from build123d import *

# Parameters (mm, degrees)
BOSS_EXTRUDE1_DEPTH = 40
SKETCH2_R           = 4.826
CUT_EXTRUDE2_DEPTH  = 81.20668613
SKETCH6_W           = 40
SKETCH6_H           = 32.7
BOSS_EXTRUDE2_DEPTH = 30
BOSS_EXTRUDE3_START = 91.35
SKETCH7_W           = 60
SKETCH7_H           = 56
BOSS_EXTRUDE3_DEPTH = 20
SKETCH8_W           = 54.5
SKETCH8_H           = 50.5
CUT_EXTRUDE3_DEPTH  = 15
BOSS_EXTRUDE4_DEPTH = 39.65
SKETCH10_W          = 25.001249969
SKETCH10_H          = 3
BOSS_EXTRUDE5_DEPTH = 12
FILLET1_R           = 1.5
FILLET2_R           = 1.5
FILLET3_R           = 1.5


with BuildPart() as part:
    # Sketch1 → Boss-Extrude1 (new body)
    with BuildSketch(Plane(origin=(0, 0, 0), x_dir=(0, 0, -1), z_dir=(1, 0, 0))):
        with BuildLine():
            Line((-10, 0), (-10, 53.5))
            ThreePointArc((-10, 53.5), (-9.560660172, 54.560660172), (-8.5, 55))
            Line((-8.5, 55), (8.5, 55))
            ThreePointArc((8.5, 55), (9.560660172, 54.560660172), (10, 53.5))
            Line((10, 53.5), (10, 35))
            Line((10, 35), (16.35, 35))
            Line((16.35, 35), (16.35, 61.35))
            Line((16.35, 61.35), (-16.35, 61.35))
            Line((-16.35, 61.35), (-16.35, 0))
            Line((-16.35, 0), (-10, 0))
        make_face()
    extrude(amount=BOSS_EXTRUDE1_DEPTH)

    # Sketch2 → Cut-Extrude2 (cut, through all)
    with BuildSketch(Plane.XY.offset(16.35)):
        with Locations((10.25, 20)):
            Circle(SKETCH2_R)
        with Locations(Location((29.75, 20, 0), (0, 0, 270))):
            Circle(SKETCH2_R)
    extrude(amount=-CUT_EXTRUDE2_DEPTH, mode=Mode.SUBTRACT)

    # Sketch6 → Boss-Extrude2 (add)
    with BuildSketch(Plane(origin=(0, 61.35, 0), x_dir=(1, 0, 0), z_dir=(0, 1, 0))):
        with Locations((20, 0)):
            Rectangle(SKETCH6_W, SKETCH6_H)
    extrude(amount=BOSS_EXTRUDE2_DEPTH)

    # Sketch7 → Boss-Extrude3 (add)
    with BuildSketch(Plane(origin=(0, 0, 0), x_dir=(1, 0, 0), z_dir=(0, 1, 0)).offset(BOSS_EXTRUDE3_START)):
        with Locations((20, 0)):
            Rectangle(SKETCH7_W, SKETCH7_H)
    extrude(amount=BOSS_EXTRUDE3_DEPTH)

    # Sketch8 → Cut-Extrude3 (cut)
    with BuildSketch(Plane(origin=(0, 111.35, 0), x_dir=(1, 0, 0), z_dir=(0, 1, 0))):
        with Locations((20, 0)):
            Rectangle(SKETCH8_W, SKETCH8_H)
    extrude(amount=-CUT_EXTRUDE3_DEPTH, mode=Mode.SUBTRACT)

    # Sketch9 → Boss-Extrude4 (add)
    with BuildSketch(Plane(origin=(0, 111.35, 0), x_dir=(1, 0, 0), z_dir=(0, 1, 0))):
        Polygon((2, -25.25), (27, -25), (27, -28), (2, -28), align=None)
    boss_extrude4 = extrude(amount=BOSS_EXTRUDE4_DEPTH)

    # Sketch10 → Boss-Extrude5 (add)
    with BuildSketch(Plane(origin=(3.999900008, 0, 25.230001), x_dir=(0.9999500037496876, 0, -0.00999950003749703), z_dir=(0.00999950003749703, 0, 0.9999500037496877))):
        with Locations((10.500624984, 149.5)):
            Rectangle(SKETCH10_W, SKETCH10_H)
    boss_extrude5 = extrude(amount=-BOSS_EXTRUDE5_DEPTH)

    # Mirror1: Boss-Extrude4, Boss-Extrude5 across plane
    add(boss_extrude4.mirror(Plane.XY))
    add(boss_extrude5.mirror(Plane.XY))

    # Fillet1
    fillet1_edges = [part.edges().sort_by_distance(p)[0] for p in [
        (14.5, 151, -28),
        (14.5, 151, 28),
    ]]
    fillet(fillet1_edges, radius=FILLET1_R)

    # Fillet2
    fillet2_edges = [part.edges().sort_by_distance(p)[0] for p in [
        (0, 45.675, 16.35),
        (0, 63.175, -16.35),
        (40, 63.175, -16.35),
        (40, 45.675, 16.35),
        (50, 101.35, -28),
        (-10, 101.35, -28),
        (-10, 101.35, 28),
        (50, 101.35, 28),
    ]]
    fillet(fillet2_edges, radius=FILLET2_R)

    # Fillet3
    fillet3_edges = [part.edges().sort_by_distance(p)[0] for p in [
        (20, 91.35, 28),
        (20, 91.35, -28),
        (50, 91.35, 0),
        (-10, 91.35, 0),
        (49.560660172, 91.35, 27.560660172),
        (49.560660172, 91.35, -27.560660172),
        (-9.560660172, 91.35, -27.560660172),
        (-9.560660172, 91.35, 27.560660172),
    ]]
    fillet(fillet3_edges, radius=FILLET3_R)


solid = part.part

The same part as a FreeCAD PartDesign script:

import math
import FreeCAD as App
import Part
import Sketcher

V = App.Vector


def edges_at(feature, points):
    """Names of the edges that pass closest to the given points."""
    edges = feature.Shape.Edges
    near = lambda p: min(range(len(edges)), key=lambda i: edges[i].distToShape(Part.Vertex(*p))[0])
    return sorted({f"Edge{near(p) + 1}" for p in points})

doc = App.newDocument("Part")
body = doc.addObject("PartDesign::Body", "Body")

# Sketch on YZ plane
sketch1 = doc.addObject("Sketcher::SketchObject", "Sketch")
body.addObject(sketch1)
sketch1.AttachmentSupport = (doc.YZ_Plane, [""])
sketch1.MapMode = "FlatFace"
sketch1.addGeometry([
    Part.LineSegment(V(0, 10, 0), V(53.5, 10, 0)),  # 0
    Part.ArcOfCircle(Part.Circle(V(53.5, 8.5, 0), V(0, 0, 1), 1.5), math.radians(0), math.radians(90)),  # 1
    Part.LineSegment(V(55, 8.5, 0), V(55, -8.5, 0)),  # 2
    Part.ArcOfCircle(Part.Circle(V(53.5, -8.5, 0), V(0, 0, 1), 1.5), math.radians(-90), math.radians(0)),  # 3
    Part.LineSegment(V(53.5, -10, 0), V(35, -10, 0)),  # 4
    Part.LineSegment(V(35, -10, 0), V(35, -16.35, 0)),  # 5
    Part.LineSegment(V(35, -16.35, 0), V(61.35, -16.35, 0)),  # 6
    Part.LineSegment(V(61.35, -16.35, 0), V(61.35, 16.35, 0)),  # 7
    Part.LineSegment(V(61.35, 16.35, 0), V(0, 16.35, 0)),  # 8
    Part.LineSegment(V(0, 16.35, 0), V(0, 10, 0)),  # 9
], False)
sketch1.addConstraint([
    Sketcher.Constraint("Tangent", 0, 2, 1, 2),
    Sketcher.Constraint("Tangent", 1, 1, 2, 1),
    Sketcher.Constraint("Tangent", 2, 2, 3, 2),
    Sketcher.Constraint("Tangent", 3, 1, 4, 1),
    Sketcher.Constraint("Coincident", 4, 2, 5, 1),
    Sketcher.Constraint("Coincident", 5, 2, 6, 1),
    Sketcher.Constraint("Coincident", 6, 2, 7, 1),
    Sketcher.Constraint("Coincident", 7, 2, 8, 1),
    Sketcher.Constraint("Coincident", 8, 2, 9, 1),
    Sketcher.Constraint("Coincident", 9, 2, 0, 1),
    Sketcher.Constraint("Horizontal", 0),
    Sketcher.Constraint("Vertical", 2),
    Sketcher.Constraint("Horizontal", 4),
    Sketcher.Constraint("Vertical", 5),
    Sketcher.Constraint("Horizontal", 6),
    Sketcher.Constraint("Vertical", 7),
    Sketcher.Constraint("Horizontal", 8),
    Sketcher.Constraint("Vertical", 9),
    Sketcher.Constraint("Equal", 1, 3),
    Sketcher.Constraint("PointOnObject", 8, 2, -2),
    Sketcher.Constraint("Equal", 5, 9),
    Sketcher.Constraint("Radius", 1, 1.5),
    Sketcher.Constraint("DistanceY", 2, 2, 2, 1, 17.0),
    Sketcher.Constraint("DistanceX", 0, 1, 0, 2, 53.5),
    Sketcher.Constraint("DistanceX", 4, 2, 4, 1, 18.5),
    Sketcher.Constraint("DistanceY", 7, 1, 7, 2, 32.7),
    Sketcher.Constraint("DistanceY", -1, 1, 0, 2, 10.0),
    Sketcher.Constraint("DistanceX", 6, 1, 6, 2, 26.35),
])
pad1 = doc.addObject("PartDesign::Pad", "Pad")
body.addObject(pad1)
pad1.Profile = sketch1
pad1.Length = 40

# Sketch on XY plane
sketch2 = doc.addObject("Sketcher::SketchObject", "Sketch001")
body.addObject(sketch2)
sketch2.AttachmentSupport = (doc.XY_Plane, [""])
sketch2.MapMode = "FlatFace"
sketch2.AttachmentOffset = App.Placement(V(0, 0, 16.35), App.Rotation())
sketch2.addGeometry([
    Part.Circle(V(10.25, 20, 0), V(0, 0, 1), 4.826),
    Part.Circle(V(29.75, 20, 0), V(0, 0, 1), 4.826),
], False)
sketch2.addConstraint([
    Sketcher.Constraint("Equal", 0, 1),
    Sketcher.Constraint("Horizontal", 0, 3, 1, 3),
    Sketcher.Constraint("Diameter", 0, 9.652),
    Sketcher.Constraint("DistanceY", -1, 1, 0, 3, 20.0),
    Sketcher.Constraint("DistanceX", 0, 3, 1, 3, 19.5),
    Sketcher.Constraint("DistanceX", -1, 1, 0, 3, 10.25),
])
pocket1 = doc.addObject("PartDesign::Pocket", "Pocket")
body.addObject(pocket1)
pocket1.Profile = sketch2
pocket1.Type = "ThroughAll"

# Sketch on XZ plane
sketch3 = doc.addObject("Sketcher::SketchObject", "Sketch002")
body.addObject(sketch3)
sketch3.AttachmentSupport = (doc.XZ_Plane, [""])
sketch3.MapMode = "FlatFace"
sketch3.AttachmentOffset = App.Placement(V(0, 0, -61.35), App.Rotation())
sketch3.addGeometry([
    Part.LineSegment(V(0, -16.35, 0), V(0, 16.35, 0)),
    Part.LineSegment(V(0, 16.35, 0), V(40, 16.35, 0)),
    Part.LineSegment(V(40, 16.35, 0), V(40, -16.35, 0)),
    Part.LineSegment(V(40, -16.35, 0), V(0, -16.35, 0)),
], False)
sketch3.addConstraint([
    Sketcher.Constraint("Coincident", 0, 2, 1, 1),
    Sketcher.Constraint("Coincident", 1, 2, 2, 1),
    Sketcher.Constraint("Coincident", 2, 2, 3, 1),
    Sketcher.Constraint("Coincident", 3, 2, 0, 1),
    Sketcher.Constraint("Vertical", 0),
    Sketcher.Constraint("Horizontal", 1),
    Sketcher.Constraint("Vertical", 2),
    Sketcher.Constraint("Horizontal", 3),
    Sketcher.Constraint("Symmetric", 0, 2, 3, 2, -1, 1),
    Sketcher.Constraint("DistanceX", 1, 1, 1, 2, 40.0),
    Sketcher.Constraint("DistanceY", 0, 1, 0, 2, 32.7),
])
pad2 = doc.addObject("PartDesign::Pad", "Pad001")
body.addObject(pad2)
pad2.Profile = sketch3
pad2.Length = 30
pad2.Reversed = True

# Sketch on XZ plane
sketch4 = doc.addObject("Sketcher::SketchObject", "Sketch003")
body.addObject(sketch4)
sketch4.AttachmentSupport = (doc.XZ_Plane, [""])
sketch4.MapMode = "FlatFace"
sketch4.AttachmentOffset = App.Placement(V(0, 0, -91.35), App.Rotation())
sketch4.addGeometry([
    Part.LineSegment(V(-10, -28, 0), V(-10, 28, 0)),
    Part.LineSegment(V(-10, 28, 0), V(50, 28, 0)),
    Part.LineSegment(V(50, 28, 0), V(50, -28, 0)),
    Part.LineSegment(V(50, -28, 0), V(-10, -28, 0)),
], False)
sketch4.addConstraint([
    Sketcher.Constraint("Coincident", 0, 2, 1, 1),
    Sketcher.Constraint("Coincident", 1, 2, 2, 1),
    Sketcher.Constraint("Coincident", 2, 2, 3, 1),
    Sketcher.Constraint("Coincident", 3, 2, 0, 1),
    Sketcher.Constraint("Vertical", 0),
    Sketcher.Constraint("Horizontal", 1),
    Sketcher.Constraint("Vertical", 2),
    Sketcher.Constraint("Horizontal", 3),
    Sketcher.Constraint("DistanceX", 1, 1, 1, 2, 60.0),
    Sketcher.Constraint("DistanceY", 0, 1, 0, 2, 56.0),
    Sketcher.Constraint("DistanceX", 0, 2, -1, 1, 10.0),
    Sketcher.Constraint("DistanceY", -1, 1, 0, 2, 28.0),
])
pad3 = doc.addObject("PartDesign::Pad", "Pad002")
body.addObject(pad3)
pad3.Profile = sketch4
pad3.Length = 20
pad3.Reversed = True

# Sketch on XZ plane
sketch5 = doc.addObject("Sketcher::SketchObject", "Sketch004")
body.addObject(sketch5)
sketch5.AttachmentSupport = (doc.XZ_Plane, [""])
sketch5.MapMode = "FlatFace"
sketch5.AttachmentOffset = App.Placement(V(0, 0, -111.35), App.Rotation())
sketch5.addGeometry([
    Part.LineSegment(V(-7.25, -25.25, 0), V(-7.25, 25.25, 0)),
    Part.LineSegment(V(-7.25, 25.25, 0), V(47.25, 25.25, 0)),
    Part.LineSegment(V(47.25, 25.25, 0), V(47.25, -25.25, 0)),
    Part.LineSegment(V(47.25, -25.25, 0), V(-7.25, -25.25, 0)),
], False)
sketch5.addConstraint([
    Sketcher.Constraint("Coincident", 0, 2, 1, 1),
    Sketcher.Constraint("Coincident", 1, 2, 2, 1),
    Sketcher.Constraint("Coincident", 2, 2, 3, 1),
    Sketcher.Constraint("Coincident", 3, 2, 0, 1),
    Sketcher.Constraint("Vertical", 0),
    Sketcher.Constraint("Horizontal", 1),
    Sketcher.Constraint("Vertical", 2),
    Sketcher.Constraint("Horizontal", 3),
    Sketcher.Constraint("DistanceX", 1, 1, 1, 2, 54.5),
    Sketcher.Constraint("DistanceY", 0, 1, 0, 2, 50.5),
    Sketcher.Constraint("DistanceX", 0, 2, -1, 1, 7.25),
    Sketcher.Constraint("DistanceY", -1, 1, 0, 2, 25.25),
])
pocket2 = doc.addObject("PartDesign::Pocket", "Pocket001")
body.addObject(pocket2)
pocket2.Profile = sketch5
pocket2.Length = 15
pocket2.Reversed = True

# Sketch on XZ plane
sketch6 = doc.addObject("Sketcher::SketchObject", "Sketch005")
body.addObject(sketch6)
sketch6.AttachmentSupport = (doc.XZ_Plane, [""])
sketch6.MapMode = "FlatFace"
sketch6.AttachmentOffset = App.Placement(V(0, 0, -111.35), App.Rotation())
sketch6.addGeometry([
    Part.LineSegment(V(27, 25, 0), V(2, 25.25, 0)),
    Part.LineSegment(V(2, 25.25, 0), V(2, 28, 0)),
    Part.LineSegment(V(2, 28, 0), V(27, 28, 0)),
    Part.LineSegment(V(27, 28, 0), V(27, 25, 0)),
], False)
sketch6.addConstraint([
    Sketcher.Constraint("Coincident", 0, 2, 1, 1),
    Sketcher.Constraint("Coincident", 1, 2, 2, 1),
    Sketcher.Constraint("Coincident", 2, 2, 3, 1),
    Sketcher.Constraint("Coincident", 3, 2, 0, 1),
    Sketcher.Constraint("Vertical", 1),
    Sketcher.Constraint("Horizontal", 2),
    Sketcher.Constraint("Vertical", 3),
    Sketcher.Constraint("DistanceX", 2, 1, 2, 2, 25.0),
    Sketcher.Constraint("DistanceY", 3, 2, 3, 1, 3.0),
    Sketcher.Constraint("DistanceX", -1, 1, 0, 2, 2.0),
    Sketcher.Constraint("DistanceY", -1, 1, 1, 2, 28.0),
    Sketcher.Constraint("DistanceY", 1, 1, 1, 2, 2.75),
])
pad4 = doc.addObject("PartDesign::Pad", "Pad003")
body.addObject(pad4)
pad4.Profile = sketch6
pad4.Length = 39.65
pad4.Reversed = True

# Sketch on an angled plane
sketch7 = doc.addObject("Sketcher::SketchObject", "Sketch006")
body.addObject(sketch7)
sketch7.Placement = App.Placement(V(3.9999, 0, 25.230001), App.Rotation(V(0.999950004, 0, -0.0099995), V(0, 1, 0), V(0.0099995, 0, 0.999950004), "ZXY"))
sketch7.addGeometry([
    Part.LineSegment(V(-2, 151, 0), V(-2, 148, 0)),
    Part.LineSegment(V(-2, 148, 0), V(23.00125, 148, 0)),
    Part.LineSegment(V(23.00125, 148, 0), V(23.00125, 151, 0)),
    Part.LineSegment(V(23.00125, 151, 0), V(-2, 151, 0)),
], False)
sketch7.addConstraint([
    Sketcher.Constraint("Coincident", 0, 2, 1, 1),
    Sketcher.Constraint("Coincident", 1, 2, 2, 1),
    Sketcher.Constraint("Coincident", 2, 2, 3, 1),
    Sketcher.Constraint("Coincident", 3, 2, 0, 1),
    Sketcher.Constraint("Vertical", 0),
    Sketcher.Constraint("Horizontal", 1),
    Sketcher.Constraint("Vertical", 2),
    Sketcher.Constraint("Horizontal", 3),
    Sketcher.Constraint("DistanceY", 0, 2, 0, 1, 3.0),
    Sketcher.Constraint("DistanceX", 0, 2, -1, 1, 2.0),
    Sketcher.Constraint("DistanceY", -1, 1, 0, 2, 148.0),
    Sketcher.Constraint("DistanceX", 1, 1, 1, 2, 25.00125),
])
pad5 = doc.addObject("PartDesign::Pad", "Pad004")
body.addObject(pad5)
pad5.Profile = sketch7
pad5.Length = 12
pad5.Reversed = True
doc.recompute()

mirrored = doc.addObject("PartDesign::Mirrored", "Mirrored")
body.addObject(mirrored)
mirrored.Originals = [pad4, pad5]
mirrored.MirrorPlane = (doc.XY_Plane, [""])
body.Tip = mirrored
doc.recompute()

fillet = doc.addObject("PartDesign::Fillet", "Fillet")
body.addObject(fillet)
fillet.Base = (mirrored, edges_at(mirrored, [(14.5, 151, -28), (14.5, 151, 28)]))
fillet.Radius = 1.5
doc.recompute()

fillet2 = doc.addObject("PartDesign::Fillet", "Fillet001")
body.addObject(fillet2)
fillet2.Base = (fillet, edges_at(fillet, [
    (0, 45.675, 16.35),
    (0, 63.175, -16.35),
    (40, 63.175, -16.35),
    (40, 45.675, 16.35),
    (50, 101.35, -28),
    (-10, 101.35, -28),
    (-10, 101.35, 28),
    (50, 101.35, 28),
]))
fillet2.Radius = 1.5
doc.recompute()

fillet3 = doc.addObject("PartDesign::Fillet", "Fillet002")
body.addObject(fillet3)
fillet3.Base = (fillet2, edges_at(fillet2, [
    (20, 91.35, 28),
    (20, 91.35, -28),
    (50, 91.35, 0),
    (-10, 91.35, 0),
    (49.561, 91.35, 27.561),
    (49.561, 91.35, -27.561),
    (-9.561, 91.35, -27.561),
    (-9.561, 91.35, 27.561),
]))
fillet3.Radius = 1.5

doc.recompute()
